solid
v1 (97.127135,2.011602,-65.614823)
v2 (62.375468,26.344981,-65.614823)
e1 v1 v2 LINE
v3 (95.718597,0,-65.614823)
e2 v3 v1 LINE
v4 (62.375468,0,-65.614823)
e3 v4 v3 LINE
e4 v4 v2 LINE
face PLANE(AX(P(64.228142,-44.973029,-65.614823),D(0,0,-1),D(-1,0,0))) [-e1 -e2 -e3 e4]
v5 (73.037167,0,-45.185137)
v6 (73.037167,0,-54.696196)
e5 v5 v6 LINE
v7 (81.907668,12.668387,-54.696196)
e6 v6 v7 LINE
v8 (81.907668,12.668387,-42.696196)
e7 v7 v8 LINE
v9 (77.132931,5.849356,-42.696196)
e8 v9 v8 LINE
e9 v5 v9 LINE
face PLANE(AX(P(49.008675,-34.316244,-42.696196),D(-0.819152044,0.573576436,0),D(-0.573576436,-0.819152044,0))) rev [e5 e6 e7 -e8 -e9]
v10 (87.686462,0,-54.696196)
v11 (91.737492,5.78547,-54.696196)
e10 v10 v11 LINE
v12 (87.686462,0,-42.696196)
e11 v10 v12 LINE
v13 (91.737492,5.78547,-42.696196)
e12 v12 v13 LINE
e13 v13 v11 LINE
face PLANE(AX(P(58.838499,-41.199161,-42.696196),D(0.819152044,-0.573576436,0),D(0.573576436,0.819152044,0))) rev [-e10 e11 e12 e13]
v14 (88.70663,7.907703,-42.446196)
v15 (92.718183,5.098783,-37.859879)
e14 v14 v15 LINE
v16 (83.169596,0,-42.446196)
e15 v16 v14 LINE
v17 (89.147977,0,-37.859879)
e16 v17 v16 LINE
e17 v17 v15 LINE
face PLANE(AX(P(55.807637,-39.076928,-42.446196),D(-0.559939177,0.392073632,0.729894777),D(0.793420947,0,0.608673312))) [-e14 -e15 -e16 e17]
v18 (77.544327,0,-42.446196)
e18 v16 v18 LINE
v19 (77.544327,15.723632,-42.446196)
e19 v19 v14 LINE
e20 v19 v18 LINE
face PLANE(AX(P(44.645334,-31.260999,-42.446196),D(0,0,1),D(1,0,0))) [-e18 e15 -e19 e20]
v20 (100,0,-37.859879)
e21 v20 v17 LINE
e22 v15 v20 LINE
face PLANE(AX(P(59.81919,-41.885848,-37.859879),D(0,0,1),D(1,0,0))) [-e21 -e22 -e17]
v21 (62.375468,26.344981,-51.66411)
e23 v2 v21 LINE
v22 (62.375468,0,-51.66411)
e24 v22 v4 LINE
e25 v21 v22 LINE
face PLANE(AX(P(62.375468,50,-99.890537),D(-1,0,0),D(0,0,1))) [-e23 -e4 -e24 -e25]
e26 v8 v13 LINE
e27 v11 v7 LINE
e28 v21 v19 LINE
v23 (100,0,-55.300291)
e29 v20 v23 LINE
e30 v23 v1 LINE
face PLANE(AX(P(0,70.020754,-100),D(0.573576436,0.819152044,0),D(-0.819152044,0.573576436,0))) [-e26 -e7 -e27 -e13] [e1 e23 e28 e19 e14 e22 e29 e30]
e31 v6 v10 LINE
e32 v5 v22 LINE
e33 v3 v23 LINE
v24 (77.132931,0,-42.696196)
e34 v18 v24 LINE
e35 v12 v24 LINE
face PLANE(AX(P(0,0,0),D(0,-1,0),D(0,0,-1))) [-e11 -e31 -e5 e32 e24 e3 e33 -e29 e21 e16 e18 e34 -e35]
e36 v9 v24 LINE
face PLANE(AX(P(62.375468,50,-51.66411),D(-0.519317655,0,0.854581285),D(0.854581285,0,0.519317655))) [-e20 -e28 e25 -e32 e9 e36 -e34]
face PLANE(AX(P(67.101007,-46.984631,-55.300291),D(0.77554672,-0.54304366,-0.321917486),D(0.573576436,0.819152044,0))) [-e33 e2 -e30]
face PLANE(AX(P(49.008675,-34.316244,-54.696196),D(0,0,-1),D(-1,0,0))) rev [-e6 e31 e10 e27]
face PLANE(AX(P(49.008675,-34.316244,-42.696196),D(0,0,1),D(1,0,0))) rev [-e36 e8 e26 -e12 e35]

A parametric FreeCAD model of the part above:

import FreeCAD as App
import Part
import Sketcher
from FreeCAD import Vector
Q = App.Units.Quantity

doc = App.newDocument("Part")
body = doc.addObject("PartDesign::Body", "Body")

# Sketch on XZ plane
sketch1 = doc.addObject("Sketcher::SketchObject", "Sketch")
body.addObject(sketch1)
sketch1.AttachmentSupport = (doc.XZ_Plane, [""])
sketch1.MapMode = "FlatFace"
sketch1.addGeometry(Part.LineSegment(Vector(0, -100, 0), Vector(0, 0, 0)), False)
sketch1.addGeometry(Part.LineSegment(Vector(0, 0, 0), Vector(100, 0, 0)), False)
sketch1.addGeometry(Part.LineSegment(Vector(100, 0, 0), Vector(100, -100, 0)), False)
sketch1.addGeometry(Part.LineSegment(Vector(100, -100, 0), Vector(0, -100, 0)), False)
sketch1.addConstraint(Sketcher.Constraint("Coincident", 0, 2, 1, 1))
sketch1.addConstraint(Sketcher.Constraint("Coincident", 1, 2, 2, 1))
sketch1.addConstraint(Sketcher.Constraint("Coincident", 2, 2, 3, 1))
sketch1.addConstraint(Sketcher.Constraint("Coincident", 3, 2, 0, 1))
sketch1.addConstraint(Sketcher.Constraint("Vertical", 0))
sketch1.addConstraint(Sketcher.Constraint("Horizontal", 1))
sketch1.addConstraint(Sketcher.Constraint("Vertical", 2))
sketch1.addConstraint(Sketcher.Constraint("Horizontal", 3))
sketch1.addConstraint(Sketcher.Constraint("Coincident", 0, 2, -1, 1))
sketch1.addConstraint(Sketcher.Constraint("Equal", 3, 0))
sketch1.addConstraint(Sketcher.Constraint("DistanceX", 1, 1, 1, 2, 100.0))
pad1 = doc.addObject("PartDesign::Pad", "Pad")
body.addObject(pad1)
pad1.Profile = sketch1
pad1.Length = 50
pad1.Reversed = True

# Sketch on XY plane
sketch2 = doc.addObject("Sketcher::SketchObject", "Sketch001")
body.addObject(sketch2)
sketch2.AttachmentSupport = (doc.XY_Plane, [""])
sketch2.MapMode = "FlatFace"
sketch2.addGeometry(Part.LineSegment(Vector(-16, 66, 0), Vector(-16, -16, 0)), False)
sketch2.addGeometry(Part.LineSegment(Vector(-16, -16, 0), Vector(116, -16, 0)), False)
sketch2.addGeometry(Part.LineSegment(Vector(116, -16, 0), Vector(116, 66, 0)), False)
sketch2.addGeometry(Part.LineSegment(Vector(116, 66, 0), Vector(6, 66, 0)), False)
sketch2.addGeometry(Part.LineSegment(Vector(6, 66, 0), Vector(100, 0, 0)), False)
sketch2.addGeometry(Part.LineSegment(Vector(100, 0, 0), Vector(0, 0, 0)), False)
sketch2.addGeometry(Part.LineSegment(Vector(0, 0, 0), Vector(0, 66, 0)), False)
sketch2.addGeometry(Part.LineSegment(Vector(0, 66, 0), Vector(-16, 66, 0)), False)
sketch2.addConstraint(Sketcher.Constraint("Coincident", 0, 2, 1, 1))
sketch2.addConstraint(Sketcher.Constraint("Coincident", 1, 2, 2, 1))
sketch2.addConstraint(Sketcher.Constraint("Coincident", 2, 2, 3, 1))
sketch2.addConstraint(Sketcher.Constraint("Coincident", 3, 2, 4, 1))
sketch2.addConstraint(Sketcher.Constraint("Coincident", 4, 2, 5, 1))
sketch2.addConstraint(Sketcher.Constraint("Coincident", 5, 2, 6, 1))
sketch2.addConstraint(Sketcher.Constraint("Coincident", 6, 2, 7, 1))
sketch2.addConstraint(Sketcher.Constraint("Coincident", 7, 2, 0, 1))
sketch2.addConstraint(Sketcher.Constraint("Vertical", 0))
sketch2.addConstraint(Sketcher.Constraint("Horizontal", 1))
sketch2.addConstraint(Sketcher.Constraint("Vertical", 2))
sketch2.addConstraint(Sketcher.Constraint("Horizontal", 3))
sketch2.addConstraint(Sketcher.Constraint("Horizontal", 5))
sketch2.addConstraint(Sketcher.Constraint("Vertical", 6))
sketch2.addConstraint(Sketcher.Constraint("Horizontal", 7))
sketch2.addConstraint(Sketcher.Constraint("Coincident", 5, 2, -1, 1))
sketch2.addConstraint(Sketcher.Constraint("Horizontal", 3, 2, 6, 2))
sketch2.addConstraint(Sketcher.Constraint("DistanceX", 1, 1, 1, 2, 132.0))
sketch2.addConstraint(Sketcher.Constraint("DistanceX", 5, 2, 5, 1, 100.0))
sketch2.addConstraint(Sketcher.Constraint("DistanceX", 7, 2, 7, 1, 16.0))
sketch2.addConstraint(Sketcher.Constraint("DistanceY", 0, 2, 0, 1, 82.0))
sketch2.addConstraint(Sketcher.Constraint("DistanceY", 6, 1, 6, 2, 66.0))
sketch2.addConstraint(Sketcher.Constraint("Angle", 4, Q("-35 deg")))
pocket1 = doc.addObject("PartDesign::Pocket", "Pocket")
body.addObject(pocket1)
pocket1.Profile = sketch2
pocket1.Type = "ThroughAll"

# Sketch on an angled plane
sketch3 = doc.addObject("Sketcher::SketchObject", "Sketch002")
body.addObject(sketch3)
sketch3.Placement = App.Placement(Vector(32.898993, 46.984631, 0), App.Rotation(Vector(0.819152044, -0.573576436, 0), Vector(0, 0, -0.999999999), Vector(0.573576436, 0.819152044, 0), "ZXY"))
sketch3.addGeometry(Part.LineSegment(Vector(-45, 116, 0), Vector(-45, -16, 0)), False)
sketch3.addGeometry(Part.LineSegment(Vector(-45, -16, 0), Vector(98, -16, 0)), False)
sketch3.addGeometry(Part.LineSegment(Vector(98, -16, 0), Vector(98, 116, 0)), False)
sketch3.addGeometry(Part.LineSegment(Vector(98, 116, 0), Vector(-45, 116, 0)), False)
sketch3.addGeometry(Part.LineSegment(Vector(82, 55, 0), Vector(82, 38, 0)), False)
sketch3.addGeometry(Part.LineSegment(Vector(82, 38, 0), Vector(73, 38, 0)), False)
sketch3.addGeometry(Part.LineSegment(Vector(73, 38, 0), Vector(68, 42, 0)), False)
sketch3.addGeometry(Part.LineSegment(Vector(68, 42, 0), Vector(55, 42, 0)), False)
sketch3.addGeometry(Part.LineSegment(Vector(55, 42, 0), Vector(36, 52, 0)), False)
sketch3.addGeometry(Part.LineSegment(Vector(36, 52, 0), Vector(36, 66, 0)), False)
sketch3.addGeometry(Part.LineSegment(Vector(36, 66, 0), Vector(78, 66, 0)), False)
sketch3.addGeometry(Part.LineSegment(Vector(78, 66, 0), Vector(82, 55, 0)), False)
sketch3.addGeometry(Part.LineSegment(Vector(60, 55, 0), Vector(60, 43, 0)), False)
sketch3.addGeometry(Part.LineSegment(Vector(60, 43, 0), Vector(72, 43, 0)), False)
sketch3.addGeometry(Part.LineSegment(Vector(72, 43, 0), Vector(72, 55, 0)), False)
sketch3.addGeometry(Part.LineSegment(Vector(72, 55, 0), Vector(60, 55, 0)), False)
sketch3.addConstraint(Sketcher.Constraint("Coincident", 0, 2, 1, 1))
sketch3.addConstraint(Sketcher.Constraint("Coincident", 1, 2, 2, 1))
sketch3.addConstraint(Sketcher.Constraint("Coincident", 2, 2, 3, 1))
sketch3.addConstraint(Sketcher.Constraint("Coincident", 3, 2, 0, 1))
sketch3.addConstraint(Sketcher.Constraint("Coincident", 4, 2, 5, 1))
sketch3.addConstraint(Sketcher.Constraint("Coincident", 5, 2, 6, 1))
sketch3.addConstraint(Sketcher.Constraint("Coincident", 6, 2, 7, 1))
sketch3.addConstraint(Sketcher.Constraint("Coincident", 7, 2, 8, 1))
sketch3.addConstraint(Sketcher.Constraint("Coincident", 8, 2, 9, 1))
sketch3.addConstraint(Sketcher.Constraint("Coincident", 9, 2, 10, 1))
sketch3.addConstraint(Sketcher.Constraint("Coincident", 10, 2, 11, 1))
sketch3.addConstraint(Sketcher.Constraint("Coincident", 11, 2, 4, 1))
sketch3.addConstraint(Sketcher.Constraint("Coincident", 12, 2, 13, 1))
sketch3.addConstraint(Sketcher.Constraint("Coincident", 13, 2, 14, 1))
sketch3.addConstraint(Sketcher.Constraint("Coincident", 14, 2, 15, 1))
sketch3.addConstraint(Sketcher.Constraint("Coincident", 15, 2, 12, 1))
sketch3.addConstraint(Sketcher.Constraint("Vertical", 0))
sketch3.addConstraint(Sketcher.Constraint("Horizontal", 1))
sketch3.addConstraint(Sketcher.Constraint("Vertical", 2))
sketch3.addConstraint(Sketcher.Constraint("Horizontal", 3))
sketch3.addConstraint(Sketcher.Constraint("Vertical", 4))
sketch3.addConstraint(Sketcher.Constraint("Horizontal", 5))
sketch3.addConstraint(Sketcher.Constraint("Horizontal", 7))
sketch3.addConstraint(Sketcher.Constraint("Vertical", 9))
sketch3.addConstraint(Sketcher.Constraint("Horizontal", 10))
sketch3.addConstraint(Sketcher.Constraint("Vertical", 12))
sketch3.addConstraint(Sketcher.Constraint("Horizontal", 13))
sketch3.addConstraint(Sketcher.Constraint("Vertical", 14))
sketch3.addConstraint(Sketcher.Constraint("Horizontal", 15))
sketch3.addConstraint(Sketcher.Constraint("Equal", 15, 12))
sketch3.addConstraint(Sketcher.Constraint("DistanceX", 13, 1, 13, 2, 12.0))
sketch3.addConstraint(Sketcher.Constraint("DistanceY", 0, 2, 0, 1, 132.0))
sketch3.addConstraint(Sketcher.Constraint("DistanceY", 0, 2, -1, 1, 16.0))
sketch3.addConstraint(Sketcher.Constraint("DistanceX", 12, 2, 6, 2, 8.3))
sketch3.addConstraint(Sketcher.Constraint("DistanceX", 1, 1, 1, 2, 142.594))
sketch3.addConstraint(Sketcher.Constraint("DistanceY", 7, 2, 12, 2, 0.25))
sketch3.addConstraint(Sketcher.Constraint("DistanceX", 0, 2, -1, 1, 44.679))
sketch3.addConstraint(Sketcher.Constraint("Distance", 11, 10.89447))
sketch3.addConstraint(Sketcher.Constraint("DistanceX", 5, 2, 5, 1, 8.889457))
sketch3.addConstraint(Sketcher.Constraint("DistanceX", 7, 2, 7, 1, 13.626656))
sketch3.addConstraint(Sketcher.Constraint("DistanceX", 10, 1, 10, 2, 42.423953))
sketch3.addConstraint(Sketcher.Constraint("DistanceY", 4, 2, 4, 1, 17.440412))
sketch3.addConstraint(Sketcher.Constraint("DistanceY", 9, 1, 9, 2, 13.950713))
sketch3.addConstraint(Sketcher.Constraint("DistanceY", -1, 1, 4, 2, 37.859879))
sketch3.addConstraint(Sketcher.Constraint("DistanceX", -1, 1, 7, 2, 54.501889))
sketch3.addConstraint(Sketcher.Constraint("DistanceX", -1, 1, 8, 2, 35.984131))
sketch3.addConstraint(Sketcher.Constraint("DistanceY", -1, 1, 8, 2, 51.66411))
sketch3.addConstraint(Sketcher.Constraint("Distance", 6, 6.709464))
pocket2 = doc.addObject("PartDesign::Pocket", "Pocket001")
body.addObject(pocket2)
pocket2.Profile = sketch3
pocket2.Type = "ThroughAll"

# Sketch on XZ plane
sketch4 = doc.addObject("Sketcher::SketchObject", "Sketch003")
body.addObject(sketch4)
sketch4.AttachmentSupport = (doc.XZ_Plane, [""])
sketch4.MapMode = "FlatFace"
sketch4.addGeometry(Part.LineSegment(Vector(62, -52, 0), Vector(62, -100, 0)), False)
sketch4.addGeometry(Part.LineSegment(Vector(62, -100, 0), Vector(28, -100, 0)), False)
sketch4.addGeometry(Part.LineSegment(Vector(28, -100, 0), Vector(28, -17, 0)), False)
sketch4.addGeometry(Part.LineSegment(Vector(28, -17, 0), Vector(62, -17, 0)), False)
sketch4.addGeometry(Part.LineSegment(Vector(62, -17, 0), Vector(78, -42, 0)), False)
sketch4.addGeometry(Part.LineSegment(Vector(78, -42, 0), Vector(62, -52, 0)), False)
sketch4.addConstraint(Sketcher.Constraint("Coincident", 0, 2, 1, 1))
sketch4.addConstraint(Sketcher.Constraint("Coincident", 1, 2, 2, 1))
sketch4.addConstraint(Sketcher.Constraint("Coincident", 2, 2, 3, 1))
sketch4.addConstraint(Sketcher.Constraint("Coincident", 3, 2, 4, 1))
sketch4.addConstraint(Sketcher.Constraint("Coincident", 4, 2, 5, 1))
sketch4.addConstraint(Sketcher.Constraint("Coincident", 5, 2, 0, 1))
sketch4.addConstraint(Sketcher.Constraint("Vertical", 0))
sketch4.addConstraint(Sketcher.Constraint("Horizontal", 1))
sketch4.addConstraint(Sketcher.Constraint("Vertical", 2))
sketch4.addConstraint(Sketcher.Constraint("Horizontal", 3))
sketch4.addConstraint(Sketcher.Constraint("Vertical", 0, 2, 3, 2))
sketch4.addConstraint(Sketcher.Constraint("DistanceX", 1, 2, 1, 1, 33.988818))
sketch4.addConstraint(Sketcher.Constraint("Distance", 5, 17.750048))
sketch4.addConstraint(Sketcher.Constraint("DistanceY", 0, 2, 0, 1, 48.226427))
sketch4.addConstraint(Sketcher.Constraint("DistanceY", 2, 1, 2, 2, 83.142597))
sketch4.addConstraint(Sketcher.Constraint("DistanceX", -1, 1, 1, 2, 28.386649))
sketch4.addConstraint(Sketcher.Constraint("DistanceY", 2, 2, -1, 1, 16.74794))
sketch4.addConstraint(Sketcher.Constraint("DistanceX", 3, 2, 4, 2, 15.168859))
pocket3 = doc.addObject("PartDesign::Pocket", "Pocket002")
body.addObject(pocket3)
pocket3.Profile = sketch4
pocket3.Length = 50

doc.recompute()
